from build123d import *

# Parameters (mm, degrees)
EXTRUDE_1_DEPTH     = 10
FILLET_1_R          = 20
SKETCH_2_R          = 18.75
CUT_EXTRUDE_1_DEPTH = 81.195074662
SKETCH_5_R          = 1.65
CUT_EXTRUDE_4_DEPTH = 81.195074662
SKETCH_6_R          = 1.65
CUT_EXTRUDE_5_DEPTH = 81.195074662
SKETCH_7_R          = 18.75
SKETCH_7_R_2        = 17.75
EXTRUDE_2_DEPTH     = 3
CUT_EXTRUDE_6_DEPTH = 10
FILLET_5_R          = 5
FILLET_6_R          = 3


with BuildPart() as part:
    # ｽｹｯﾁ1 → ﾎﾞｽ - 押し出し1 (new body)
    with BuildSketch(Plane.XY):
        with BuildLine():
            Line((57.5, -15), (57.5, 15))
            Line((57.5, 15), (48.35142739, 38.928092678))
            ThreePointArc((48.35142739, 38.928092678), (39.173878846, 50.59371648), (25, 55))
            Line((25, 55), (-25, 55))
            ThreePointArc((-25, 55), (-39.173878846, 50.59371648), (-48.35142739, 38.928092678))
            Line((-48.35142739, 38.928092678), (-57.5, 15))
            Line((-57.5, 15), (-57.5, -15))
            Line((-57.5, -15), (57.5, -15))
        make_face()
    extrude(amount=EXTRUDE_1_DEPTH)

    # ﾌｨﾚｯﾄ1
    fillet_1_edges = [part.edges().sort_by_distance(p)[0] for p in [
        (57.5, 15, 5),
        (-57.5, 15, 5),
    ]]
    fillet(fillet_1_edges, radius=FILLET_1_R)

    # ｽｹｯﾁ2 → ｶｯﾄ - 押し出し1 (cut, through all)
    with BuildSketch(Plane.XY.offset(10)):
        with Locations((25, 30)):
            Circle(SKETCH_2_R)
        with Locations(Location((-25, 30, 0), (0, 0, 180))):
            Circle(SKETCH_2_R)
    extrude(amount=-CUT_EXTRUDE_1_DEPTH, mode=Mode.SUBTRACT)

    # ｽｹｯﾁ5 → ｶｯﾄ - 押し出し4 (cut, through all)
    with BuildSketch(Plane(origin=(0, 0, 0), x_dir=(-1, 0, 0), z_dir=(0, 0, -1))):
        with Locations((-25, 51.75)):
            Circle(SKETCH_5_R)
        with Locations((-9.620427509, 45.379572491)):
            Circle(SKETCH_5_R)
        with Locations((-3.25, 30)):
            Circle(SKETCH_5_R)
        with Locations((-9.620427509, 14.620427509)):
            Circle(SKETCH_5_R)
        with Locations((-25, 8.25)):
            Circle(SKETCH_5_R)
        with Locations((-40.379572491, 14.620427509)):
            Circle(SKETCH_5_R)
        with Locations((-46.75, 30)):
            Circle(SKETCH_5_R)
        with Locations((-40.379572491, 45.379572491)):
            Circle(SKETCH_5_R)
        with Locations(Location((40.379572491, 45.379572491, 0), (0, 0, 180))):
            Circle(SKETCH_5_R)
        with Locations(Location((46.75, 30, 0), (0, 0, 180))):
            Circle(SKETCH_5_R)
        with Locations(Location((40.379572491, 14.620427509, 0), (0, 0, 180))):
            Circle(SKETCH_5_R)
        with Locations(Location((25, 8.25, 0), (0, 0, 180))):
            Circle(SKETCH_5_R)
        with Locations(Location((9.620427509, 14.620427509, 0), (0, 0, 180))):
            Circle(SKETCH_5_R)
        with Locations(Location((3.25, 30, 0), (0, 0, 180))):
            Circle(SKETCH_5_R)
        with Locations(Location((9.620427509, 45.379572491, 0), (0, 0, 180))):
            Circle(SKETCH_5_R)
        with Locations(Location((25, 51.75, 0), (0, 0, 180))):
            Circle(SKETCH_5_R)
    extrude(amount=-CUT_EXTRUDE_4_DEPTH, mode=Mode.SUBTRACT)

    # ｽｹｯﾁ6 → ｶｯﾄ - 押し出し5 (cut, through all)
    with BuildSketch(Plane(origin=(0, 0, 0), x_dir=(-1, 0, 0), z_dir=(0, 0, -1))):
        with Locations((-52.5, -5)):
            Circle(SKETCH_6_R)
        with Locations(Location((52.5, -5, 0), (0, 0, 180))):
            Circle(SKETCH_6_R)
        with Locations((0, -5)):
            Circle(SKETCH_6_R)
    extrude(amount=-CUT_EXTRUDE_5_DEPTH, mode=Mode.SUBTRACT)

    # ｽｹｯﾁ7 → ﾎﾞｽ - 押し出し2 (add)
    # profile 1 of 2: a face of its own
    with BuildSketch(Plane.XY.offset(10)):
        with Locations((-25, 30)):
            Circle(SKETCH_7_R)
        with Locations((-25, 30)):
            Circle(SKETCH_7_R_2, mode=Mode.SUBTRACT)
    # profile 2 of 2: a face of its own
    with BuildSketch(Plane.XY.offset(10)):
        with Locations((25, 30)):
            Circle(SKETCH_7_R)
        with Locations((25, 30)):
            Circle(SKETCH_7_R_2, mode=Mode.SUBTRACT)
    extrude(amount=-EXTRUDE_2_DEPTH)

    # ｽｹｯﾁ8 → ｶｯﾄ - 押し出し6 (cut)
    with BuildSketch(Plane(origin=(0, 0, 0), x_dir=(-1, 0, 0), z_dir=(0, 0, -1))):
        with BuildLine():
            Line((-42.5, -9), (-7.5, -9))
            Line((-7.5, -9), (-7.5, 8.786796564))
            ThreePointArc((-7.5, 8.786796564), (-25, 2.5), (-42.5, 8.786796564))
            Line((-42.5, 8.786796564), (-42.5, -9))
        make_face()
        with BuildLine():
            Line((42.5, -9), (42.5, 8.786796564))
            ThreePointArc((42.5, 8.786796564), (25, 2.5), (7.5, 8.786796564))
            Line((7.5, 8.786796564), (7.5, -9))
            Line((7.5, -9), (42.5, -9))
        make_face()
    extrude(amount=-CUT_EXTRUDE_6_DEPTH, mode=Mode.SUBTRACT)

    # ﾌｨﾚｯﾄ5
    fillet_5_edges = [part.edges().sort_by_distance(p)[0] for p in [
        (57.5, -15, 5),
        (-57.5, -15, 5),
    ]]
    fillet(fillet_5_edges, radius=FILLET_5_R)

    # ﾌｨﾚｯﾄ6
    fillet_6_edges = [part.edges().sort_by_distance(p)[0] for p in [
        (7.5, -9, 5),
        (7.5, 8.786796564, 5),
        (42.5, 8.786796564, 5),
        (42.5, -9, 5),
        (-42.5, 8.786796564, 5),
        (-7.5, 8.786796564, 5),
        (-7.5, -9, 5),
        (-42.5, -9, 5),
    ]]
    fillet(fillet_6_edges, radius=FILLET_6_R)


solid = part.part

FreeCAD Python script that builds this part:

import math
import FreeCAD as App
import Part
import Sketcher

V = App.Vector


def edges_at(feature, points):
    """Names of the edges that pass closest to the given points."""
    edges = feature.Shape.Edges
    near = lambda p: min(range(len(edges)), key=lambda i: edges[i].distToShape(Part.Vertex(*p))[0])
    return sorted({f"Edge{near(p) + 1}" for p in points})

doc = App.newDocument("Part")
body = doc.addObject("PartDesign::Body", "Body")

sketch1 = doc.addObject("Sketcher::SketchObject", "Sketch")
body.addObject(sketch1)
sketch1.AttachmentSupport = (doc.XY_Plane, [""])
sketch1.MapMode = "FlatFace"
sketch1.addGeometry(Part.LineSegment(V(58, -15, 0), V(58, 15, 0)), False)
sketch1.addGeometry(Part.LineSegment(V(58, 15, 0), V(48, 39, 0)), False)
sketch1.addGeometry(Part.ArcOfCircle(Part.Circle(V(25, 30, 0), V(0, 0, 1), 25), math.radians(21), math.radians(90)), False)
sketch1.addGeometry(Part.LineSegment(V(25, 55, 0), V(-25, 55, 0)), False)
sketch1.addGeometry(Part.ArcOfCircle(Part.Circle(V(-25, 30, 0), V(0, 0, 1), 25), math.radians(90), math.radians(159)), False)
sketch1.addGeometry(Part.LineSegment(V(-48, 39, 0), V(-58, 15, 0)), False)
sketch1.addGeometry(Part.LineSegment(V(-58, 15, 0), V(-58, -15, 0)), False)
sketch1.addGeometry(Part.LineSegment(V(-58, -15, 0), V(58, -15, 0)), False)
sketch1.addConstraint(Sketcher.Constraint("Coincident", 0, 2, 1, 1))
sketch1.addConstraint(Sketcher.Constraint("Tangent", 1, 2, 2, 1))
sketch1.addConstraint(Sketcher.Constraint("Tangent", 2, 2, 3, 1))
sketch1.addConstraint(Sketcher.Constraint("Tangent", 3, 2, 4, 1))
sketch1.addConstraint(Sketcher.Constraint("Tangent", 4, 2, 5, 1))
sketch1.addConstraint(Sketcher.Constraint("Coincident", 5, 2, 6, 1))
sketch1.addConstraint(Sketcher.Constraint("Coincident", 6, 2, 7, 1))
sketch1.addConstraint(Sketcher.Constraint("Coincident", 7, 2, 0, 1))
sketch1.addConstraint(Sketcher.Constraint("Vertical", 0))
sketch1.addConstraint(Sketcher.Constraint("Horizontal", 3))
sketch1.addConstraint(Sketcher.Constraint("Vertical", 6))
sketch1.addConstraint(Sketcher.Constraint("Horizontal", 7))
sketch1.addConstraint(Sketcher.Constraint("Equal", 2, 4))
sketch1.addConstraint(Sketcher.Constraint("Symmetric", 0, 2, 6, 2, -1, 1))
sketch1.addConstraint(Sketcher.Constraint("Symmetric", 1, 2, 4, 2, -2))
sketch1.addConstraint(Sketcher.Constraint("Radius", 2, 25.0))
sketch1.addConstraint(Sketcher.Constraint("DistanceX", 3, 2, 3, 1, 50.0))
sketch1.addConstraint(Sketcher.Constraint("DistanceX", 7, 1, 7, 2, 115.0))
sketch1.addConstraint(Sketcher.Constraint("DistanceY", 0, 1, 0, 2, 30.0))
sketch1.addConstraint(Sketcher.Constraint("DistanceY", -1, 1, 2, 3, 30.0))
pad1 = doc.addObject("PartDesign::Pad", "Pad")
body.addObject(pad1)
pad1.Profile = sketch1
pad1.Length = 10
doc.recompute()

fillet = doc.addObject("PartDesign::Fillet", "Fillet")
body.addObject(fillet)
fillet.Base = (pad1, edges_at(pad1, [(57.5, 15, 5), (-57.5, 15, 5)]))
fillet.Radius = 20

sketch2 = doc.addObject("Sketcher::SketchObject", "Sketch001")
body.addObject(sketch2)
sketch2.AttachmentSupport = (doc.XY_Plane, [""])
sketch2.MapMode = "FlatFace"
sketch2.AttachmentOffset = App.Placement(V(0, 0, 10), App.Rotation())
sketch2.addGeometry(Part.Circle(V(25, 30, 0), V(0, 0, 1), 19), False)
sketch2.addGeometry(Part.Circle(V(-25, 30, 0), V(0, 0, 1), 19), False)
sketch2.addConstraint(Sketcher.Constraint("Equal", 0, 1))
sketch2.addConstraint(Sketcher.Constraint("Symmetric", 0, 3, 1, 3, -2))
sketch2.addConstraint(Sketcher.Constraint("Diameter", 0, 37.5))
sketch2.addConstraint(Sketcher.Constraint("DistanceX", -1, 1, 0, 3, 25.0))
sketch2.addConstraint(Sketcher.Constraint("DistanceY", -1, 1, 0, 3, 30.0))
pocket1 = doc.addObject("PartDesign::Pocket", "Pocket")
body.addObject(pocket1)
pocket1.Profile = sketch2
pocket1.Type = "ThroughAll"

sketch3 = doc.addObject("Sketcher::SketchObject", "Sketch002")
body.addObject(sketch3)
sketch3.AttachmentSupport = (doc.XY_Plane, [""])
sketch3.MapMode = "FlatFace"
sketch3.addGeometry(Part.Circle(V(25, 51.8, 0), V(0, 0, 1), 1.6), False)
sketch3.addGeometry(Part.Circle(V(9.6, 45.4, 0), V(0, 0, 1), 1.6), False)
sketch3.addGeometry(Part.Circle(V(3.2, 30, 0), V(0, 0, 1), 1.6), False)
sketch3.addGeometry(Part.Circle(V(9.6, 14.6, 0), V(0, 0, 1), 1.6), False)
sketch3.addGeometry(Part.Circle(V(25, 8.2, 0), V(0, 0, 1), 1.6), False)
sketch3.addGeometry(Part.Circle(V(40.4, 14.6, 0), V(0, 0, 1), 1.6), False)
sketch3.addGeometry(Part.Circle(V(46.8, 30, 0), V(0, 0, 1), 1.6), False)
sketch3.addGeometry(Part.Circle(V(40.4, 45.4, 0), V(0, 0, 1), 1.6), False)
sketch3.addGeometry(Part.Circle(V(-40.4, 45.4, 0), V(0, 0, 1), 1.6), False)
sketch3.addGeometry(Part.Circle(V(-46.8, 30, 0), V(0, 0, 1), 1.6), False)
sketch3.addGeometry(Part.Circle(V(-40.4, 14.6, 0), V(0, 0, 1), 1.6), False)
sketch3.addGeometry(Part.Circle(V(-25, 8.2, 0), V(0, 0, 1), 1.6), False)
sketch3.addGeometry(Part.Circle(V(-9.6, 14.6, 0), V(0, 0, 1), 1.6), False)
sketch3.addGeometry(Part.Circle(V(-3.2, 30, 0), V(0, 0, 1), 1.6), False)
sketch3.addGeometry(Part.Circle(V(-9.6, 45.4, 0), V(0, 0, 1), 1.6), False)
sketch3.addGeometry(Part.Circle(V(-25, 51.8, 0), V(0, 0, 1), 1.6), False)
sketch3.addConstraint(Sketcher.Constraint("Equal", 0, 1))
sketch3.addConstraint(Sketcher.Constraint("Equal", 1, 2))
sketch3.addConstraint(Sketcher.Constraint("Equal", 2, 3))
sketch3.addConstraint(Sketcher.Constraint("Equal", 3, 4))
sketch3.addConstraint(Sketcher.Constraint("Equal", 4, 5))
sketch3.addConstraint(Sketcher.Constraint("Equal", 5, 6))
sketch3.addConstraint(Sketcher.Constraint("Equal", 6, 7))
sketch3.addConstraint(Sketcher.Constraint("Equal", 7, 8))
sketch3.addConstraint(Sketcher.Constraint("Equal", 8, 9))
sketch3.addConstraint(Sketcher.Constraint("Equal", 9, 10))
sketch3.addConstraint(Sketcher.Constraint("Equal", 10, 11))
sketch3.addConstraint(Sketcher.Constraint("Equal", 11, 12))
sketch3.addConstraint(Sketcher.Constraint("Equal", 12, 13))
sketch3.addConstraint(Sketcher.Constraint("Equal", 13, 14))
sketch3.addConstraint(Sketcher.Constraint("Equal", 14, 15))
sketch3.addConstraint(Sketcher.Constraint("Symmetric", 7, 3, 8, 3, -2))
sketch3.addConstraint(Sketcher.Constraint("Symmetric", 6, 3, 9, 3, -2))
sketch3.addConstraint(Sketcher.Constraint("Symmetric", 5, 3, 10, 3, -2))
sketch3.addConstraint(Sketcher.Constraint("Symmetric", 4, 3, 11, 3, -2))
sketch3.addConstraint(Sketcher.Constraint("Symmetric", 3, 3, 12, 3, -2))
sketch3.addConstraint(Sketcher.Constraint("Symmetric", 2, 3, 13, 3, -2))
sketch3.addConstraint(Sketcher.Constraint("Symmetric", 1, 3, 14, 3, -2))
sketch3.addConstraint(Sketcher.Constraint("Symmetric", 0, 3, 15, 3, -2))
sketch3.addConstraint(Sketcher.Constraint("Horizontal", 3, 3, 5, 3))
sketch3.addConstraint(Sketcher.Constraint("Horizontal", 2, 3, 6, 3))
sketch3.addConstraint(Sketcher.Constraint("Horizontal", 1, 3, 7, 3))
sketch3.addConstraint(Sketcher.Constraint("Vertical", 1, 3, 3, 3))
sketch3.addConstraint(Sketcher.Constraint("Vertical", 0, 3, 4, 3))
sketch3.addConstraint(Sketcher.Constraint("Vertical", 5, 3, 7, 3))
sketch3.addConstraint(Sketcher.Constraint("Diameter", 0, 3.3))
sketch3.addConstraint(Sketcher.Constraint("DistanceX", -1, 1, 0, 3, 25.0))
sketch3.addConstraint(Sketcher.Constraint("DistanceY", -1, 1, 2, 3, 30.0))
sketch3.addConstraint(Sketcher.Constraint("DistanceX", 8, 3, 1, 3, 50.0))
sketch3.addConstraint(Sketcher.Constraint("DistanceX", 9, 3, 2, 3, 50.0))
sketch3.addConstraint(Sketcher.Constraint("DistanceY", 4, 3, 0, 3, 43.5))
sketch3.addConstraint(Sketcher.Constraint("DistanceX", 13, 3, 2, 3, 6.5))
sketch3.addConstraint(Sketcher.Constraint("DistanceY", -1, 1, 0, 3, 51.75))
sketch3.addConstraint(Sketcher.Constraint("DistanceX", -1, 1, 1, 3, 9.620428))
sketch3.addConstraint(Sketcher.Constraint("DistanceY", -1, 1, 1, 3, 45.379572))
sketch3.addConstraint(Sketcher.Constraint("DistanceY", -1, 1, 3, 3, 14.620428))
pocket2 = doc.addObject("PartDesign::Pocket", "Pocket001")
body.addObject(pocket2)
pocket2.Profile = sketch3
pocket2.Type = "ThroughAll"
pocket2.Reversed = True

sketch4 = doc.addObject("Sketcher::SketchObject", "Sketch003")
body.addObject(sketch4)
sketch4.AttachmentSupport = (doc.XY_Plane, [""])
sketch4.MapMode = "FlatFace"
sketch4.addGeometry(Part.Circle(V(52.5, -5, 0), V(0, 0, 1), 1.6), False)
sketch4.addGeometry(Part.Circle(V(-52.5, -5, 0), V(0, 0, 1), 1.6), False)
sketch4.addGeometry(Part.Circle(V(0, -5, 0), V(0, 0, 1), 1.6), False)
sketch4.addConstraint(Sketcher.Constraint("Equal", 0, 1))
sketch4.addConstraint(Sketcher.Constraint("Equal", 1, 2))
sketch4.addConstraint(Sketcher.Constraint("Symmetric", 0, 3, 1, 3, -2))
sketch4.addConstraint(Sketcher.Constraint("PointOnObject", 2, 3, -2))
sketch4.addConstraint(Sketcher.Constraint("Horizontal", 1, 3, 2, 3))
sketch4.addConstraint(Sketcher.Constraint("Diameter", 0, 3.3))
sketch4.addConstraint(Sketcher.Constraint("DistanceY", 0, 3, -1, 1, 5.0))
sketch4.addConstraint(Sketcher.Constraint("DistanceX", 1, 3, 0, 3, 105.0))
pocket3 = doc.addObject("PartDesign::Pocket", "Pocket002")
body.addObject(pocket3)
pocket3.Profile = sketch4
pocket3.Type = "ThroughAll"
pocket3.Reversed = True

sketch5 = doc.addObject("Sketcher::SketchObject", "Sketch004")
body.addObject(sketch5)
sketch5.AttachmentSupport = (doc.XY_Plane, [""])
sketch5.MapMode = "FlatFace"
sketch5.AttachmentOffset = App.Placement(V(0, 0, 10), App.Rotation())
sketch5.addGeometry(Part.Circle(V(-25, 30, 0), V(0, 0, 1), 19), False)
sketch5.addGeometry(Part.Circle(V(-25, 30, 0), V(0, 0, 1), 18), False)
sketch5.addGeometry(Part.Circle(V(25, 30, 0), V(0, 0, 1), 19), False)
sketch5.addGeometry(Part.Circle(V(25, 30, 0), V(0, 0, 1), 18), False)
sketch5.addConstraint(Sketcher.Constraint("Coincident", 1, 3, 0, 3))
sketch5.addConstraint(Sketcher.Constraint("Coincident", 3, 3, 2, 3))
sketch5.addConstraint(Sketcher.Constraint("Equal", 0, 2))
sketch5.addConstraint(Sketcher.Constraint("Equal", 1, 3))
sketch5.addConstraint(Sketcher.Constraint("Symmetric", 0, 3, 2, 3, -2))
sketch5.addConstraint(Sketcher.Constraint("Diameter", 0, 37.5))
sketch5.addConstraint(Sketcher.Constraint("Diameter", 1, 35.5))
sketch5.addConstraint(Sketcher.Constraint("DistanceX", 0, 3, -1, 1, 25.0))
sketch5.addConstraint(Sketcher.Constraint("DistanceY", -1, 1, 0, 3, 30.0))
pad2 = doc.addObject("PartDesign::Pad", "Pad001")
body.addObject(pad2)
pad2.Profile = sketch5
pad2.Length = 3
pad2.Reversed = True

sketch6 = doc.addObject("Sketcher::SketchObject", "Sketch005")
body.addObject(sketch6)
sketch6.AttachmentSupport = (doc.XY_Plane, [""])
sketch6.MapMode = "FlatFace"
sketch6.addGeometry(Part.LineSegment(V(42, -9, 0), V(8, -9, 0)), False)
sketch6.addGeometry(Part.LineSegment(V(8, -9, 0), V(8, 9, 0)), False)
sketch6.addGeometry(Part.ArcOfCircle(Part.Circle(V(25, 30, 0), V(0, 0, 1), 28), math.radians(-130), math.radians(-50)), False)
sketch6.addGeometry(Part.LineSegment(V(42, 9, 0), V(42, -9, 0)), False)
sketch6.addGeometry(Part.LineSegment(V(-42, -9, 0), V(-42, 9, 0)), False)
sketch6.addGeometry(Part.ArcOfCircle(Part.Circle(V(-25, 30, 0), V(0, 0, 1), 28), math.radians(-130), math.radians(-50)), False)
sketch6.addGeometry(Part.LineSegment(V(-8, 9, 0), V(-8, -9, 0)), False)
sketch6.addGeometry(Part.LineSegment(V(-8, -9, 0), V(-42, -9, 0)), False)
sketch6.addConstraint(Sketcher.Constraint("Coincident", 0, 2, 1, 1))
sketch6.addConstraint(Sketcher.Constraint("Coincident", 1, 2, 2, 1))
sketch6.addConstraint(Sketcher.Constraint("Coincident", 2, 2, 3, 1))
sketch6.addConstraint(Sketcher.Constraint("Coincident", 3, 2, 0, 1))
sketch6.addConstraint(Sketcher.Constraint("Coincident", 4, 2, 5, 1))
sketch6.addConstraint(Sketcher.Constraint("Coincident", 5, 2, 6, 1))
sketch6.addConstraint(Sketcher.Constraint("Coincident", 6, 2, 7, 1))
sketch6.addConstraint(Sketcher.Constraint("Coincident", 7, 2, 4, 1))
sketch6.addConstraint(Sketcher.Constraint("Horizontal", 0))
sketch6.addConstraint(Sketcher.Constraint("Vertical", 1))
sketch6.addConstraint(Sketcher.Constraint("Vertical", 3))
sketch6.addConstraint(Sketcher.Constraint("Vertical", 4))
sketch6.addConstraint(Sketcher.Constraint("Vertical", 6))
sketch6.addConstraint(Sketcher.Constraint("Horizontal", 7))
sketch6.addConstraint(Sketcher.Constraint("Equal", 2, 5))
sketch6.addConstraint(Sketcher.Constraint("Symmetric", 2, 3, 5, 3, -2))
sketch6.addConstraint(Sketcher.Constraint("Symmetric", 0, 2, 6, 2, -2))
sketch6.addConstraint(Sketcher.Constraint("Horizontal", 1, 2, 2, 2))
sketch6.addConstraint(Sketcher.Constraint("Horizontal", 2, 2, 4, 2))
sketch6.addConstraint(Sketcher.Constraint("Radius", 2, 27.5))
sketch6.addConstraint(Sketcher.Constraint("DistanceX", 0, 2, 0, 1, 35.0))
sketch6.addConstraint(Sketcher.Constraint("DistanceX", -1, 1, 2, 3, 25.0))
sketch6.addConstraint(Sketcher.Constraint("DistanceY", -1, 1, 2, 3, 30.0))
sketch6.addConstraint(Sketcher.Constraint("DistanceY", 0, 2, -1, 1, 9.0))
pocket4 = doc.addObject("PartDesign::Pocket", "Pocket003")
body.addObject(pocket4)
pocket4.Profile = sketch6
pocket4.Length = 10
pocket4.Reversed = True
doc.recompute()

fillet2 = doc.addObject("PartDesign::Fillet", "Fillet001")
body.addObject(fillet2)
fillet2.Base = (pocket4, edges_at(pocket4, [(57.5, -15, 5), (-57.5, -15, 5)]))
fillet2.Radius = 5
doc.recompute()

fillet3 = doc.addObject("PartDesign::Fillet", "Fillet002")
body.addObject(fillet3)
fillet3.Base = (fillet2, edges_at(fillet2, [
    (7.5, -9, 5),
    (7.5, 8.787, 5),
    (42.5, 8.787, 5),
    (42.5, -9, 5),
    (-42.5, 8.787, 5),
    (-7.5, 8.787, 5),
    (-7.5, -9, 5),
    (-42.5, -9, 5),
]))
fillet3.Radius = 3

doc.recompute()
